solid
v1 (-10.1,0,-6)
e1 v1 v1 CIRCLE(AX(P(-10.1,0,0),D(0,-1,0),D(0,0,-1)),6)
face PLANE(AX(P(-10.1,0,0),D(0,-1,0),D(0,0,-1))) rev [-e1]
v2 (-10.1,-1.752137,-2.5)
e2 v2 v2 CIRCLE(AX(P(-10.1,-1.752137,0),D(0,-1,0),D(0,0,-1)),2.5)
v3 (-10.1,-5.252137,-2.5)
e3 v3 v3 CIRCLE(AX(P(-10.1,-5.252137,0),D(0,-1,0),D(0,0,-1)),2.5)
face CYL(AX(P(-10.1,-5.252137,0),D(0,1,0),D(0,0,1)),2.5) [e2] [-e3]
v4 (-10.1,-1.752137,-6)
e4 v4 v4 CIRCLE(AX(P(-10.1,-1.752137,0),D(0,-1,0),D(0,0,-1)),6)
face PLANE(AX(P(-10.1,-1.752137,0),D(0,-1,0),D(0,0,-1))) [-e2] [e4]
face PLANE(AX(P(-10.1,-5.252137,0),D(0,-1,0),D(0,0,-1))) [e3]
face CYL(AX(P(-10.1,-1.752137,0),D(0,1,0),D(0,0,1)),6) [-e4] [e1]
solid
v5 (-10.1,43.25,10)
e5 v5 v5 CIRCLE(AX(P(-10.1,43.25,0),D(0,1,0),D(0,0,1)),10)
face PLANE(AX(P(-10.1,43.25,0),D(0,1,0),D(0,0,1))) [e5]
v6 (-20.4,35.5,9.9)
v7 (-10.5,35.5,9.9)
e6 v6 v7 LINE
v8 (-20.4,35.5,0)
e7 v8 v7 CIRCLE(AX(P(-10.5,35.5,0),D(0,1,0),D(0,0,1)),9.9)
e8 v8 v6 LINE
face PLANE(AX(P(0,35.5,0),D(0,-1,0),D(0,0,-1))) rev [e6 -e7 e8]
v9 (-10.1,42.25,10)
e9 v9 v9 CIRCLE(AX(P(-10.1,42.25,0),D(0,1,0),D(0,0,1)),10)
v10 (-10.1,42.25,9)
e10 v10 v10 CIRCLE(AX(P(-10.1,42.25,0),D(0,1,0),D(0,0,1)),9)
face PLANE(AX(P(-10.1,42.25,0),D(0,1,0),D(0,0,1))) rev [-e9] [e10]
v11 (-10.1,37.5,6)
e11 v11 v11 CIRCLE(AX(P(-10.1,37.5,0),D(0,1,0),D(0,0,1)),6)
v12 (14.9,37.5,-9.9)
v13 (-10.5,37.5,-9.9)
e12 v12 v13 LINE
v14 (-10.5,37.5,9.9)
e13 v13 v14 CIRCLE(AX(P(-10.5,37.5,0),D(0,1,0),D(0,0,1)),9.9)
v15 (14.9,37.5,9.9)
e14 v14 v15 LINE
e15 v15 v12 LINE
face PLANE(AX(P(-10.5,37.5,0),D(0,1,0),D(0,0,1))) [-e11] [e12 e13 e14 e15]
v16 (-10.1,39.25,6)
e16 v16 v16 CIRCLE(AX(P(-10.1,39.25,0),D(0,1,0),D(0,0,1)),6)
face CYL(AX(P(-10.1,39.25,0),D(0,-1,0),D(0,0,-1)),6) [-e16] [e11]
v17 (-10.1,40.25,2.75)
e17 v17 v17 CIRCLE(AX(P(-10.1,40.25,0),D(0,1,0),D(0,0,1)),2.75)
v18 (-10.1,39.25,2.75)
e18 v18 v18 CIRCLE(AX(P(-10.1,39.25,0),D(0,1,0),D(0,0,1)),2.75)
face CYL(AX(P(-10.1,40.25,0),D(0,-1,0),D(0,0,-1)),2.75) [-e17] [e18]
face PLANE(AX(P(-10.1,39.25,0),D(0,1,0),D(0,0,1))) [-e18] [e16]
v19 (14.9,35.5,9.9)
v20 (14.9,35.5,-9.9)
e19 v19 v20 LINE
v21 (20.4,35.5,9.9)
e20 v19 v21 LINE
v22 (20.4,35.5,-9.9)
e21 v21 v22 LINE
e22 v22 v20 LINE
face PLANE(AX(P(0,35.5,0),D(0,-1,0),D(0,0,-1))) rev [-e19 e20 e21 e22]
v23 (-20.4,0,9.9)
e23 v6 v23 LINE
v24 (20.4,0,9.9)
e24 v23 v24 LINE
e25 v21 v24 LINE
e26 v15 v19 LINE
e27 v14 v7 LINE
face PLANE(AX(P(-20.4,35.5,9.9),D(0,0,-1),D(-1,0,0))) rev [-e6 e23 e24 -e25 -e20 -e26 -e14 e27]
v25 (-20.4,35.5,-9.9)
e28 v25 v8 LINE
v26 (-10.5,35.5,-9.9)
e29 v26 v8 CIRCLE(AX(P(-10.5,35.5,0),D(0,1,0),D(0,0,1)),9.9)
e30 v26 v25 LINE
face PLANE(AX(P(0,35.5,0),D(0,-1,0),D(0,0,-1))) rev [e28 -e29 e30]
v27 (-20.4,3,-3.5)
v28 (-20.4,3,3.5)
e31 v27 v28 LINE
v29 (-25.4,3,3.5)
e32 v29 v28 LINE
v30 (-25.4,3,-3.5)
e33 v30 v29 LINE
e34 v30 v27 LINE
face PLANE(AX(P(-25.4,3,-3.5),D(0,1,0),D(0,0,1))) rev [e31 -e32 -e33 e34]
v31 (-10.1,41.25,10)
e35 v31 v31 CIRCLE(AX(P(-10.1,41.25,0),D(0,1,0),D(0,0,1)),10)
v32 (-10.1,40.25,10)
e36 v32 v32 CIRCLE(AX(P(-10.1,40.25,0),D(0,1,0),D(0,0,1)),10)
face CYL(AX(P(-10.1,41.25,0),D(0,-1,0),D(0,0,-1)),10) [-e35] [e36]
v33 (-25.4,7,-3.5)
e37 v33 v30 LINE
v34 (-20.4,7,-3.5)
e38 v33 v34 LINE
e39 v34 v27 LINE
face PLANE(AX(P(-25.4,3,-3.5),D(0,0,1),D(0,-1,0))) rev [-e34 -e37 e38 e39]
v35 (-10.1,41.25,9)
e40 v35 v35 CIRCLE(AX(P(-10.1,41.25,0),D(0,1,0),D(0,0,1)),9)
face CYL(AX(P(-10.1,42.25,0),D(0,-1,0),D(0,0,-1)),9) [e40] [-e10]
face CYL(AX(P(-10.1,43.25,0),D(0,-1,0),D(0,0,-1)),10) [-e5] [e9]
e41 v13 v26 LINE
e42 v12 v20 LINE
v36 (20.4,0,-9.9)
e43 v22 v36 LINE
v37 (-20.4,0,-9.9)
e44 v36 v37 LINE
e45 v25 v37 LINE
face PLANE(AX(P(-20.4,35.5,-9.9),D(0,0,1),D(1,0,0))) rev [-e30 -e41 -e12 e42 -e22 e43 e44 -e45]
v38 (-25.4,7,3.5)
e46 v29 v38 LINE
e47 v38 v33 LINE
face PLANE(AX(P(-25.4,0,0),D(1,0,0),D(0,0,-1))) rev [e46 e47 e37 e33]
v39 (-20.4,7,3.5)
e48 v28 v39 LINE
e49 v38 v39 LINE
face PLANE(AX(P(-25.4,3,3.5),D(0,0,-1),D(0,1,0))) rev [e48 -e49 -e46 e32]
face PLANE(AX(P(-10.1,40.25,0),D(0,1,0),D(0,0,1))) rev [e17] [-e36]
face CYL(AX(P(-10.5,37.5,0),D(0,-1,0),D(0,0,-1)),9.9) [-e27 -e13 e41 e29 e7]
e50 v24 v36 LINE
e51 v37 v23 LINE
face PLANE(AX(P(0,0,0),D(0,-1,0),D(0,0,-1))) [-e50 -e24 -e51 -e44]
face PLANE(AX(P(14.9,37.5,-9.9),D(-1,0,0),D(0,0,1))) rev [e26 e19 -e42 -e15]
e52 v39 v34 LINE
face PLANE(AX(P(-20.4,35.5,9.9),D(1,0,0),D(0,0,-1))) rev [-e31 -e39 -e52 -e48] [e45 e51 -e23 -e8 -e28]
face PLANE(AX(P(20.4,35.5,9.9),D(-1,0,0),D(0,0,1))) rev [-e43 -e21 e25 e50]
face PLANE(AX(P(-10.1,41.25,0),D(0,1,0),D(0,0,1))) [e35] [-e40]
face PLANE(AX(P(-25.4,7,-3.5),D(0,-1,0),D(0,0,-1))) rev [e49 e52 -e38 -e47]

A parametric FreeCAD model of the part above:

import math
import FreeCAD as App
import Part
import Sketcher

doc = App.newDocument("Part")
body = doc.addObject("PartDesign::Body", "Body")

# Sketch on XZ plane
sketch1 = body.newObject("Sketcher::SketchObject", "Sketch")
sketch1.AttachmentSupport = (doc.getObject("XZ_Plane"), [""])
sketch1.MapMode = "FlatFace"
sketch1.addGeometry([
    Part.LineSegment(App.Vector(-20, -10, 0), App.Vector(-20, 10, 0)),
    Part.LineSegment(App.Vector(-20, 10, 0), App.Vector(20, 10, 0)),
    Part.LineSegment(App.Vector(20, 10, 0), App.Vector(20, -10, 0)),
    Part.LineSegment(App.Vector(20, -10, 0), App.Vector(-20, -10, 0)),
], False)
sketch1.addConstraint([
    Sketcher.Constraint("Coincident", 0, 2, 1, 1),
    Sketcher.Constraint("Coincident", 1, 2, 2, 1),
    Sketcher.Constraint("Coincident", 2, 2, 3, 1),
    Sketcher.Constraint("Coincident", 3, 2, 0, 1),
    Sketcher.Constraint("Vertical", 0),
    Sketcher.Constraint("Horizontal", 1),
    Sketcher.Constraint("Vertical", 2),
    Sketcher.Constraint("Horizontal", 3),
    Sketcher.Constraint("Symmetric", 0, 2, 2, 2, -1, 1),
    Sketcher.Constraint("DistanceX", 1, 1, 1, 2, 40.8),
    Sketcher.Constraint("DistanceY", 0, 1, 0, 2, 19.8),
])
pad1 = body.newObject("PartDesign::Pad", "Pad")
pad1.Profile = sketch1
pad1.Length = 35.5
pad1.Reversed = True

# Sketch on XZ plane
sketch2 = body.newObject("Sketcher::SketchObject", "Sketch001")
sketch2.AttachmentSupport = (doc.getObject("XZ_Plane"), [""])
sketch2.MapMode = "FlatFace"
sketch2.AttachmentOffset = App.Placement(App.Vector(0, 0, -35.5), App.Rotation())
sketch2.addGeometry([
    Part.LineSegment(App.Vector(15, 10, 0), App.Vector(15, -10, 0)),
    Part.LineSegment(App.Vector(15, -10, 0), App.Vector(-10, -10, 0)),
    Part.ArcOfCircle(Part.Circle(App.Vector(-10, 0, 0), App.Vector(0, 0, 1), 10), math.radians(90), math.radians(270)),
    Part.LineSegment(App.Vector(-10, 10, 0), App.Vector(15, 10, 0)),
], False)
sketch2.addConstraint([
    Sketcher.Constraint("Coincident", 0, 2, 1, 1),
    Sketcher.Constraint("Tangent", 1, 2, 2, 2),
    Sketcher.Constraint("Tangent", 2, 1, 3, 1),
    Sketcher.Constraint("Coincident", 3, 2, 0, 1),
    Sketcher.Constraint("Vertical", 0),
    Sketcher.Constraint("Horizontal", 1),
    Sketcher.Constraint("Horizontal", 3),
    Sketcher.Constraint("PointOnObject", 2, 3, -1),
    Sketcher.Constraint("Radius", 2, 9.9),
    Sketcher.Constraint("DistanceX", 1, 2, 1, 1, 25.4),
    Sketcher.Constraint("DistanceX", 2, 3, -1, 1, 10.5),
])
pad2 = body.newObject("PartDesign::Pad", "Pad001")
pad2.Profile = sketch2
pad2.Length = 2
pad2.Reversed = True

# Sketch on XZ plane
sketch3 = body.newObject("Sketcher::SketchObject", "Sketch002")
sketch3.AttachmentSupport = (doc.getObject("XZ_Plane"), [""])
sketch3.MapMode = "FlatFace"
sketch3.AttachmentOffset = App.Placement(App.Vector(0, 0, -37.5), App.Rotation())
sketch3.addGeometry(Part.Circle(App.Vector(-10, 0, 0), App.Vector(0, 0, 1), 6), False)
sketch3.addConstraint([
    Sketcher.Constraint("PointOnObject", 0, 3, -1),
    Sketcher.Constraint("Diameter", 0, 12.0),
    Sketcher.Constraint("DistanceX", 0, 3, -1, 1, 10.1),
])
pad3 = body.newObject("PartDesign::Pad", "Pad002")
pad3.Profile = sketch3
pad3.Length = 1.75
pad3.Reversed = True

# Sketch on XZ plane
sketch4 = body.newObject("Sketcher::SketchObject", "Sketch003")
sketch4.AttachmentSupport = (doc.getObject("XZ_Plane"), [""])
sketch4.MapMode = "FlatFace"
sketch4.AttachmentOffset = App.Placement(App.Vector(0, 0, -39.25), App.Rotation())
sketch4.addGeometry(Part.Circle(App.Vector(-10.1, 0, 0), App.Vector(0, 0, 1), 2.8), False)
sketch4.addConstraint([
    Sketcher.Constraint("PointOnObject", 0, 3, -1),
    Sketcher.Constraint("Diameter", 0, 5.5),
    Sketcher.Constraint("DistanceX", 0, 3, -1, 1, 10.1),
])
pad4 = body.newObject("PartDesign::Pad", "Pad003")
pad4.Profile = sketch4
pad4.Length = 1
pad4.Reversed = True

# Sketch on YZ plane
sketch5 = body.newObject("Sketcher::SketchObject", "Sketch004")
sketch5.AttachmentSupport = (doc.getObject("YZ_Plane"), [""])
sketch5.MapMode = "FlatFace"
sketch5.AttachmentOffset = App.Placement(App.Vector(0, 0, -20.4), App.Rotation())
sketch5.addGeometry([
    Part.LineSegment(App.Vector(7, -3.5, 0), App.Vector(3, -3.5, 0)),
    Part.LineSegment(App.Vector(3, -3.5, 0), App.Vector(3, 3.5, 0)),
    Part.LineSegment(App.Vector(3, 3.5, 0), App.Vector(7, 3.5, 0)),
    Part.LineSegment(App.Vector(7, 3.5, 0), App.Vector(7, -3.5, 0)),
], False)
sketch5.addConstraint([
    Sketcher.Constraint("Coincident", 0, 2, 1, 1),
    Sketcher.Constraint("Coincident", 1, 2, 2, 1),
    Sketcher.Constraint("Coincident", 2, 2, 3, 1),
    Sketcher.Constraint("Coincident", 3, 2, 0, 1),
    Sketcher.Constraint("Horizontal", 0),
    Sketcher.Constraint("Vertical", 1),
    Sketcher.Constraint("Horizontal", 2),
    Sketcher.Constraint("Vertical", 3),
    Sketcher.Constraint("DistanceX", 0, 2, 0, 1, 4.0),
    Sketcher.Constraint("DistanceY", 1, 1, 1, 2, 7.0),
    Sketcher.Constraint("DistanceX", -1, 1, 0, 2, 3.0),
    Sketcher.Constraint("DistanceY", 0, 2, -1, 1, 3.5),
])
pad5 = body.newObject("PartDesign::Pad", "Pad004")
pad5.Profile = sketch5
pad5.Length = 5
pad5.Reversed = True

# Sketch on XZ plane
sketch6 = body.newObject("Sketcher::SketchObject", "Sketch005")
sketch6.AttachmentSupport = (doc.getObject("XZ_Plane"), [""])
sketch6.MapMode = "FlatFace"
sketch6.AttachmentOffset = App.Placement(App.Vector(0, 0, -40.25), App.Rotation())
sketch6.addGeometry(Part.Circle(App.Vector(-10, 0, 0), App.Vector(0, 0, 1), 10), False)
sketch6.addConstraint([
    Sketcher.Constraint("PointOnObject", 0, 3, -1),
    Sketcher.Constraint("Diameter", 0, 20.0),
    Sketcher.Constraint("DistanceX", 0, 3, -1, 1, 10.1),
])
pad6 = body.newObject("PartDesign::Pad", "Pad005")
pad6.Profile = sketch6
pad6.Length = 1
pad6.Reversed = True

# Sketch on XZ plane
sketch7 = body.newObject("Sketcher::SketchObject", "Sketch006")
sketch7.AttachmentSupport = (doc.getObject("XZ_Plane"), [""])
sketch7.MapMode = "FlatFace"
sketch7.AttachmentOffset = App.Placement(App.Vector(0, 0, -41.25), App.Rotation())
sketch7.addGeometry(Part.Circle(App.Vector(-10, 0, 0), App.Vector(0, 0, 1), 9), False)
sketch7.addConstraint([
    Sketcher.Constraint("PointOnObject", 0, 3, -1),
    Sketcher.Constraint("Diameter", 0, 18.0),
    Sketcher.Constraint("DistanceX", 0, 3, -1, 1, 10.1),
])
pad7 = body.newObject("PartDesign::Pad", "Pad006")
pad7.Profile = sketch7
pad7.Length = 1
pad7.Reversed = True

# Sketch on XZ plane
sketch8 = body.newObject("Sketcher::SketchObject", "Sketch007")
sketch8.AttachmentSupport = (doc.getObject("XZ_Plane"), [""])
sketch8.MapMode = "FlatFace"
sketch8.AttachmentOffset = App.Placement(App.Vector(0, 0, -42.25), App.Rotation())
sketch8.addGeometry(Part.Circle(App.Vector(-10, 0, 0), App.Vector(0, 0, 1), 10), False)
sketch8.addConstraint([
    Sketcher.Constraint("PointOnObject", 0, 3, -1),
    Sketcher.Constraint("Diameter", 0, 20.0),
    Sketcher.Constraint("DistanceX", 0, 3, -1, 1, 10.1),
])
pad8 = body.newObject("PartDesign::Pad", "Pad007")
pad8.Profile = sketch8
pad8.Length = 1
pad8.Reversed = True
body2 = doc.addObject("PartDesign::Body", "Body001")

# Sketch on XZ plane
sketch9 = body2.newObject("Sketcher::SketchObject", "Sketch008")
sketch9.AttachmentSupport = (doc.getObject("XZ_Plane001"), [""])
sketch9.MapMode = "FlatFace"
sketch9.addGeometry(Part.Circle(App.Vector(-10, 0, 0), App.Vector(0, 0, 1), 6), False)
sketch9.addConstraint([
    Sketcher.Constraint("PointOnObject", 0, 3, -1),
    Sketcher.Constraint("Diameter", 0, 12.0),
    Sketcher.Constraint("DistanceX", 0, 3, -1, 1, 10.1),
])
pad9 = body2.newObject("PartDesign::Pad", "Pad008")
pad9.Profile = sketch9
pad9.Length = 1.752137

# Sketch on XZ plane
sketch10 = body2.newObject("Sketcher::SketchObject", "Sketch009")
sketch10.AttachmentSupport = (doc.getObject("XZ_Plane001"), [""])
sketch10.MapMode = "FlatFace"
sketch10.AttachmentOffset = App.Placement(App.Vector(0, 0, 1.752137), App.Rotation())
sketch10.addGeometry(Part.Circle(App.Vector(-10.1, 0, 0), App.Vector(0, 0, 1), 2.5), False)
sketch10.addConstraint([
    Sketcher.Constraint("PointOnObject", 0, 3, -1),
    Sketcher.Constraint("Diameter", 0, 5.0),
    Sketcher.Constraint("DistanceX", 0, 3, -1, 1, 10.1),
])
pad10 = body2.newObject("PartDesign::Pad", "Pad009")
pad10.Profile = sketch10
pad10.Length = 3.5

doc.recompute()
